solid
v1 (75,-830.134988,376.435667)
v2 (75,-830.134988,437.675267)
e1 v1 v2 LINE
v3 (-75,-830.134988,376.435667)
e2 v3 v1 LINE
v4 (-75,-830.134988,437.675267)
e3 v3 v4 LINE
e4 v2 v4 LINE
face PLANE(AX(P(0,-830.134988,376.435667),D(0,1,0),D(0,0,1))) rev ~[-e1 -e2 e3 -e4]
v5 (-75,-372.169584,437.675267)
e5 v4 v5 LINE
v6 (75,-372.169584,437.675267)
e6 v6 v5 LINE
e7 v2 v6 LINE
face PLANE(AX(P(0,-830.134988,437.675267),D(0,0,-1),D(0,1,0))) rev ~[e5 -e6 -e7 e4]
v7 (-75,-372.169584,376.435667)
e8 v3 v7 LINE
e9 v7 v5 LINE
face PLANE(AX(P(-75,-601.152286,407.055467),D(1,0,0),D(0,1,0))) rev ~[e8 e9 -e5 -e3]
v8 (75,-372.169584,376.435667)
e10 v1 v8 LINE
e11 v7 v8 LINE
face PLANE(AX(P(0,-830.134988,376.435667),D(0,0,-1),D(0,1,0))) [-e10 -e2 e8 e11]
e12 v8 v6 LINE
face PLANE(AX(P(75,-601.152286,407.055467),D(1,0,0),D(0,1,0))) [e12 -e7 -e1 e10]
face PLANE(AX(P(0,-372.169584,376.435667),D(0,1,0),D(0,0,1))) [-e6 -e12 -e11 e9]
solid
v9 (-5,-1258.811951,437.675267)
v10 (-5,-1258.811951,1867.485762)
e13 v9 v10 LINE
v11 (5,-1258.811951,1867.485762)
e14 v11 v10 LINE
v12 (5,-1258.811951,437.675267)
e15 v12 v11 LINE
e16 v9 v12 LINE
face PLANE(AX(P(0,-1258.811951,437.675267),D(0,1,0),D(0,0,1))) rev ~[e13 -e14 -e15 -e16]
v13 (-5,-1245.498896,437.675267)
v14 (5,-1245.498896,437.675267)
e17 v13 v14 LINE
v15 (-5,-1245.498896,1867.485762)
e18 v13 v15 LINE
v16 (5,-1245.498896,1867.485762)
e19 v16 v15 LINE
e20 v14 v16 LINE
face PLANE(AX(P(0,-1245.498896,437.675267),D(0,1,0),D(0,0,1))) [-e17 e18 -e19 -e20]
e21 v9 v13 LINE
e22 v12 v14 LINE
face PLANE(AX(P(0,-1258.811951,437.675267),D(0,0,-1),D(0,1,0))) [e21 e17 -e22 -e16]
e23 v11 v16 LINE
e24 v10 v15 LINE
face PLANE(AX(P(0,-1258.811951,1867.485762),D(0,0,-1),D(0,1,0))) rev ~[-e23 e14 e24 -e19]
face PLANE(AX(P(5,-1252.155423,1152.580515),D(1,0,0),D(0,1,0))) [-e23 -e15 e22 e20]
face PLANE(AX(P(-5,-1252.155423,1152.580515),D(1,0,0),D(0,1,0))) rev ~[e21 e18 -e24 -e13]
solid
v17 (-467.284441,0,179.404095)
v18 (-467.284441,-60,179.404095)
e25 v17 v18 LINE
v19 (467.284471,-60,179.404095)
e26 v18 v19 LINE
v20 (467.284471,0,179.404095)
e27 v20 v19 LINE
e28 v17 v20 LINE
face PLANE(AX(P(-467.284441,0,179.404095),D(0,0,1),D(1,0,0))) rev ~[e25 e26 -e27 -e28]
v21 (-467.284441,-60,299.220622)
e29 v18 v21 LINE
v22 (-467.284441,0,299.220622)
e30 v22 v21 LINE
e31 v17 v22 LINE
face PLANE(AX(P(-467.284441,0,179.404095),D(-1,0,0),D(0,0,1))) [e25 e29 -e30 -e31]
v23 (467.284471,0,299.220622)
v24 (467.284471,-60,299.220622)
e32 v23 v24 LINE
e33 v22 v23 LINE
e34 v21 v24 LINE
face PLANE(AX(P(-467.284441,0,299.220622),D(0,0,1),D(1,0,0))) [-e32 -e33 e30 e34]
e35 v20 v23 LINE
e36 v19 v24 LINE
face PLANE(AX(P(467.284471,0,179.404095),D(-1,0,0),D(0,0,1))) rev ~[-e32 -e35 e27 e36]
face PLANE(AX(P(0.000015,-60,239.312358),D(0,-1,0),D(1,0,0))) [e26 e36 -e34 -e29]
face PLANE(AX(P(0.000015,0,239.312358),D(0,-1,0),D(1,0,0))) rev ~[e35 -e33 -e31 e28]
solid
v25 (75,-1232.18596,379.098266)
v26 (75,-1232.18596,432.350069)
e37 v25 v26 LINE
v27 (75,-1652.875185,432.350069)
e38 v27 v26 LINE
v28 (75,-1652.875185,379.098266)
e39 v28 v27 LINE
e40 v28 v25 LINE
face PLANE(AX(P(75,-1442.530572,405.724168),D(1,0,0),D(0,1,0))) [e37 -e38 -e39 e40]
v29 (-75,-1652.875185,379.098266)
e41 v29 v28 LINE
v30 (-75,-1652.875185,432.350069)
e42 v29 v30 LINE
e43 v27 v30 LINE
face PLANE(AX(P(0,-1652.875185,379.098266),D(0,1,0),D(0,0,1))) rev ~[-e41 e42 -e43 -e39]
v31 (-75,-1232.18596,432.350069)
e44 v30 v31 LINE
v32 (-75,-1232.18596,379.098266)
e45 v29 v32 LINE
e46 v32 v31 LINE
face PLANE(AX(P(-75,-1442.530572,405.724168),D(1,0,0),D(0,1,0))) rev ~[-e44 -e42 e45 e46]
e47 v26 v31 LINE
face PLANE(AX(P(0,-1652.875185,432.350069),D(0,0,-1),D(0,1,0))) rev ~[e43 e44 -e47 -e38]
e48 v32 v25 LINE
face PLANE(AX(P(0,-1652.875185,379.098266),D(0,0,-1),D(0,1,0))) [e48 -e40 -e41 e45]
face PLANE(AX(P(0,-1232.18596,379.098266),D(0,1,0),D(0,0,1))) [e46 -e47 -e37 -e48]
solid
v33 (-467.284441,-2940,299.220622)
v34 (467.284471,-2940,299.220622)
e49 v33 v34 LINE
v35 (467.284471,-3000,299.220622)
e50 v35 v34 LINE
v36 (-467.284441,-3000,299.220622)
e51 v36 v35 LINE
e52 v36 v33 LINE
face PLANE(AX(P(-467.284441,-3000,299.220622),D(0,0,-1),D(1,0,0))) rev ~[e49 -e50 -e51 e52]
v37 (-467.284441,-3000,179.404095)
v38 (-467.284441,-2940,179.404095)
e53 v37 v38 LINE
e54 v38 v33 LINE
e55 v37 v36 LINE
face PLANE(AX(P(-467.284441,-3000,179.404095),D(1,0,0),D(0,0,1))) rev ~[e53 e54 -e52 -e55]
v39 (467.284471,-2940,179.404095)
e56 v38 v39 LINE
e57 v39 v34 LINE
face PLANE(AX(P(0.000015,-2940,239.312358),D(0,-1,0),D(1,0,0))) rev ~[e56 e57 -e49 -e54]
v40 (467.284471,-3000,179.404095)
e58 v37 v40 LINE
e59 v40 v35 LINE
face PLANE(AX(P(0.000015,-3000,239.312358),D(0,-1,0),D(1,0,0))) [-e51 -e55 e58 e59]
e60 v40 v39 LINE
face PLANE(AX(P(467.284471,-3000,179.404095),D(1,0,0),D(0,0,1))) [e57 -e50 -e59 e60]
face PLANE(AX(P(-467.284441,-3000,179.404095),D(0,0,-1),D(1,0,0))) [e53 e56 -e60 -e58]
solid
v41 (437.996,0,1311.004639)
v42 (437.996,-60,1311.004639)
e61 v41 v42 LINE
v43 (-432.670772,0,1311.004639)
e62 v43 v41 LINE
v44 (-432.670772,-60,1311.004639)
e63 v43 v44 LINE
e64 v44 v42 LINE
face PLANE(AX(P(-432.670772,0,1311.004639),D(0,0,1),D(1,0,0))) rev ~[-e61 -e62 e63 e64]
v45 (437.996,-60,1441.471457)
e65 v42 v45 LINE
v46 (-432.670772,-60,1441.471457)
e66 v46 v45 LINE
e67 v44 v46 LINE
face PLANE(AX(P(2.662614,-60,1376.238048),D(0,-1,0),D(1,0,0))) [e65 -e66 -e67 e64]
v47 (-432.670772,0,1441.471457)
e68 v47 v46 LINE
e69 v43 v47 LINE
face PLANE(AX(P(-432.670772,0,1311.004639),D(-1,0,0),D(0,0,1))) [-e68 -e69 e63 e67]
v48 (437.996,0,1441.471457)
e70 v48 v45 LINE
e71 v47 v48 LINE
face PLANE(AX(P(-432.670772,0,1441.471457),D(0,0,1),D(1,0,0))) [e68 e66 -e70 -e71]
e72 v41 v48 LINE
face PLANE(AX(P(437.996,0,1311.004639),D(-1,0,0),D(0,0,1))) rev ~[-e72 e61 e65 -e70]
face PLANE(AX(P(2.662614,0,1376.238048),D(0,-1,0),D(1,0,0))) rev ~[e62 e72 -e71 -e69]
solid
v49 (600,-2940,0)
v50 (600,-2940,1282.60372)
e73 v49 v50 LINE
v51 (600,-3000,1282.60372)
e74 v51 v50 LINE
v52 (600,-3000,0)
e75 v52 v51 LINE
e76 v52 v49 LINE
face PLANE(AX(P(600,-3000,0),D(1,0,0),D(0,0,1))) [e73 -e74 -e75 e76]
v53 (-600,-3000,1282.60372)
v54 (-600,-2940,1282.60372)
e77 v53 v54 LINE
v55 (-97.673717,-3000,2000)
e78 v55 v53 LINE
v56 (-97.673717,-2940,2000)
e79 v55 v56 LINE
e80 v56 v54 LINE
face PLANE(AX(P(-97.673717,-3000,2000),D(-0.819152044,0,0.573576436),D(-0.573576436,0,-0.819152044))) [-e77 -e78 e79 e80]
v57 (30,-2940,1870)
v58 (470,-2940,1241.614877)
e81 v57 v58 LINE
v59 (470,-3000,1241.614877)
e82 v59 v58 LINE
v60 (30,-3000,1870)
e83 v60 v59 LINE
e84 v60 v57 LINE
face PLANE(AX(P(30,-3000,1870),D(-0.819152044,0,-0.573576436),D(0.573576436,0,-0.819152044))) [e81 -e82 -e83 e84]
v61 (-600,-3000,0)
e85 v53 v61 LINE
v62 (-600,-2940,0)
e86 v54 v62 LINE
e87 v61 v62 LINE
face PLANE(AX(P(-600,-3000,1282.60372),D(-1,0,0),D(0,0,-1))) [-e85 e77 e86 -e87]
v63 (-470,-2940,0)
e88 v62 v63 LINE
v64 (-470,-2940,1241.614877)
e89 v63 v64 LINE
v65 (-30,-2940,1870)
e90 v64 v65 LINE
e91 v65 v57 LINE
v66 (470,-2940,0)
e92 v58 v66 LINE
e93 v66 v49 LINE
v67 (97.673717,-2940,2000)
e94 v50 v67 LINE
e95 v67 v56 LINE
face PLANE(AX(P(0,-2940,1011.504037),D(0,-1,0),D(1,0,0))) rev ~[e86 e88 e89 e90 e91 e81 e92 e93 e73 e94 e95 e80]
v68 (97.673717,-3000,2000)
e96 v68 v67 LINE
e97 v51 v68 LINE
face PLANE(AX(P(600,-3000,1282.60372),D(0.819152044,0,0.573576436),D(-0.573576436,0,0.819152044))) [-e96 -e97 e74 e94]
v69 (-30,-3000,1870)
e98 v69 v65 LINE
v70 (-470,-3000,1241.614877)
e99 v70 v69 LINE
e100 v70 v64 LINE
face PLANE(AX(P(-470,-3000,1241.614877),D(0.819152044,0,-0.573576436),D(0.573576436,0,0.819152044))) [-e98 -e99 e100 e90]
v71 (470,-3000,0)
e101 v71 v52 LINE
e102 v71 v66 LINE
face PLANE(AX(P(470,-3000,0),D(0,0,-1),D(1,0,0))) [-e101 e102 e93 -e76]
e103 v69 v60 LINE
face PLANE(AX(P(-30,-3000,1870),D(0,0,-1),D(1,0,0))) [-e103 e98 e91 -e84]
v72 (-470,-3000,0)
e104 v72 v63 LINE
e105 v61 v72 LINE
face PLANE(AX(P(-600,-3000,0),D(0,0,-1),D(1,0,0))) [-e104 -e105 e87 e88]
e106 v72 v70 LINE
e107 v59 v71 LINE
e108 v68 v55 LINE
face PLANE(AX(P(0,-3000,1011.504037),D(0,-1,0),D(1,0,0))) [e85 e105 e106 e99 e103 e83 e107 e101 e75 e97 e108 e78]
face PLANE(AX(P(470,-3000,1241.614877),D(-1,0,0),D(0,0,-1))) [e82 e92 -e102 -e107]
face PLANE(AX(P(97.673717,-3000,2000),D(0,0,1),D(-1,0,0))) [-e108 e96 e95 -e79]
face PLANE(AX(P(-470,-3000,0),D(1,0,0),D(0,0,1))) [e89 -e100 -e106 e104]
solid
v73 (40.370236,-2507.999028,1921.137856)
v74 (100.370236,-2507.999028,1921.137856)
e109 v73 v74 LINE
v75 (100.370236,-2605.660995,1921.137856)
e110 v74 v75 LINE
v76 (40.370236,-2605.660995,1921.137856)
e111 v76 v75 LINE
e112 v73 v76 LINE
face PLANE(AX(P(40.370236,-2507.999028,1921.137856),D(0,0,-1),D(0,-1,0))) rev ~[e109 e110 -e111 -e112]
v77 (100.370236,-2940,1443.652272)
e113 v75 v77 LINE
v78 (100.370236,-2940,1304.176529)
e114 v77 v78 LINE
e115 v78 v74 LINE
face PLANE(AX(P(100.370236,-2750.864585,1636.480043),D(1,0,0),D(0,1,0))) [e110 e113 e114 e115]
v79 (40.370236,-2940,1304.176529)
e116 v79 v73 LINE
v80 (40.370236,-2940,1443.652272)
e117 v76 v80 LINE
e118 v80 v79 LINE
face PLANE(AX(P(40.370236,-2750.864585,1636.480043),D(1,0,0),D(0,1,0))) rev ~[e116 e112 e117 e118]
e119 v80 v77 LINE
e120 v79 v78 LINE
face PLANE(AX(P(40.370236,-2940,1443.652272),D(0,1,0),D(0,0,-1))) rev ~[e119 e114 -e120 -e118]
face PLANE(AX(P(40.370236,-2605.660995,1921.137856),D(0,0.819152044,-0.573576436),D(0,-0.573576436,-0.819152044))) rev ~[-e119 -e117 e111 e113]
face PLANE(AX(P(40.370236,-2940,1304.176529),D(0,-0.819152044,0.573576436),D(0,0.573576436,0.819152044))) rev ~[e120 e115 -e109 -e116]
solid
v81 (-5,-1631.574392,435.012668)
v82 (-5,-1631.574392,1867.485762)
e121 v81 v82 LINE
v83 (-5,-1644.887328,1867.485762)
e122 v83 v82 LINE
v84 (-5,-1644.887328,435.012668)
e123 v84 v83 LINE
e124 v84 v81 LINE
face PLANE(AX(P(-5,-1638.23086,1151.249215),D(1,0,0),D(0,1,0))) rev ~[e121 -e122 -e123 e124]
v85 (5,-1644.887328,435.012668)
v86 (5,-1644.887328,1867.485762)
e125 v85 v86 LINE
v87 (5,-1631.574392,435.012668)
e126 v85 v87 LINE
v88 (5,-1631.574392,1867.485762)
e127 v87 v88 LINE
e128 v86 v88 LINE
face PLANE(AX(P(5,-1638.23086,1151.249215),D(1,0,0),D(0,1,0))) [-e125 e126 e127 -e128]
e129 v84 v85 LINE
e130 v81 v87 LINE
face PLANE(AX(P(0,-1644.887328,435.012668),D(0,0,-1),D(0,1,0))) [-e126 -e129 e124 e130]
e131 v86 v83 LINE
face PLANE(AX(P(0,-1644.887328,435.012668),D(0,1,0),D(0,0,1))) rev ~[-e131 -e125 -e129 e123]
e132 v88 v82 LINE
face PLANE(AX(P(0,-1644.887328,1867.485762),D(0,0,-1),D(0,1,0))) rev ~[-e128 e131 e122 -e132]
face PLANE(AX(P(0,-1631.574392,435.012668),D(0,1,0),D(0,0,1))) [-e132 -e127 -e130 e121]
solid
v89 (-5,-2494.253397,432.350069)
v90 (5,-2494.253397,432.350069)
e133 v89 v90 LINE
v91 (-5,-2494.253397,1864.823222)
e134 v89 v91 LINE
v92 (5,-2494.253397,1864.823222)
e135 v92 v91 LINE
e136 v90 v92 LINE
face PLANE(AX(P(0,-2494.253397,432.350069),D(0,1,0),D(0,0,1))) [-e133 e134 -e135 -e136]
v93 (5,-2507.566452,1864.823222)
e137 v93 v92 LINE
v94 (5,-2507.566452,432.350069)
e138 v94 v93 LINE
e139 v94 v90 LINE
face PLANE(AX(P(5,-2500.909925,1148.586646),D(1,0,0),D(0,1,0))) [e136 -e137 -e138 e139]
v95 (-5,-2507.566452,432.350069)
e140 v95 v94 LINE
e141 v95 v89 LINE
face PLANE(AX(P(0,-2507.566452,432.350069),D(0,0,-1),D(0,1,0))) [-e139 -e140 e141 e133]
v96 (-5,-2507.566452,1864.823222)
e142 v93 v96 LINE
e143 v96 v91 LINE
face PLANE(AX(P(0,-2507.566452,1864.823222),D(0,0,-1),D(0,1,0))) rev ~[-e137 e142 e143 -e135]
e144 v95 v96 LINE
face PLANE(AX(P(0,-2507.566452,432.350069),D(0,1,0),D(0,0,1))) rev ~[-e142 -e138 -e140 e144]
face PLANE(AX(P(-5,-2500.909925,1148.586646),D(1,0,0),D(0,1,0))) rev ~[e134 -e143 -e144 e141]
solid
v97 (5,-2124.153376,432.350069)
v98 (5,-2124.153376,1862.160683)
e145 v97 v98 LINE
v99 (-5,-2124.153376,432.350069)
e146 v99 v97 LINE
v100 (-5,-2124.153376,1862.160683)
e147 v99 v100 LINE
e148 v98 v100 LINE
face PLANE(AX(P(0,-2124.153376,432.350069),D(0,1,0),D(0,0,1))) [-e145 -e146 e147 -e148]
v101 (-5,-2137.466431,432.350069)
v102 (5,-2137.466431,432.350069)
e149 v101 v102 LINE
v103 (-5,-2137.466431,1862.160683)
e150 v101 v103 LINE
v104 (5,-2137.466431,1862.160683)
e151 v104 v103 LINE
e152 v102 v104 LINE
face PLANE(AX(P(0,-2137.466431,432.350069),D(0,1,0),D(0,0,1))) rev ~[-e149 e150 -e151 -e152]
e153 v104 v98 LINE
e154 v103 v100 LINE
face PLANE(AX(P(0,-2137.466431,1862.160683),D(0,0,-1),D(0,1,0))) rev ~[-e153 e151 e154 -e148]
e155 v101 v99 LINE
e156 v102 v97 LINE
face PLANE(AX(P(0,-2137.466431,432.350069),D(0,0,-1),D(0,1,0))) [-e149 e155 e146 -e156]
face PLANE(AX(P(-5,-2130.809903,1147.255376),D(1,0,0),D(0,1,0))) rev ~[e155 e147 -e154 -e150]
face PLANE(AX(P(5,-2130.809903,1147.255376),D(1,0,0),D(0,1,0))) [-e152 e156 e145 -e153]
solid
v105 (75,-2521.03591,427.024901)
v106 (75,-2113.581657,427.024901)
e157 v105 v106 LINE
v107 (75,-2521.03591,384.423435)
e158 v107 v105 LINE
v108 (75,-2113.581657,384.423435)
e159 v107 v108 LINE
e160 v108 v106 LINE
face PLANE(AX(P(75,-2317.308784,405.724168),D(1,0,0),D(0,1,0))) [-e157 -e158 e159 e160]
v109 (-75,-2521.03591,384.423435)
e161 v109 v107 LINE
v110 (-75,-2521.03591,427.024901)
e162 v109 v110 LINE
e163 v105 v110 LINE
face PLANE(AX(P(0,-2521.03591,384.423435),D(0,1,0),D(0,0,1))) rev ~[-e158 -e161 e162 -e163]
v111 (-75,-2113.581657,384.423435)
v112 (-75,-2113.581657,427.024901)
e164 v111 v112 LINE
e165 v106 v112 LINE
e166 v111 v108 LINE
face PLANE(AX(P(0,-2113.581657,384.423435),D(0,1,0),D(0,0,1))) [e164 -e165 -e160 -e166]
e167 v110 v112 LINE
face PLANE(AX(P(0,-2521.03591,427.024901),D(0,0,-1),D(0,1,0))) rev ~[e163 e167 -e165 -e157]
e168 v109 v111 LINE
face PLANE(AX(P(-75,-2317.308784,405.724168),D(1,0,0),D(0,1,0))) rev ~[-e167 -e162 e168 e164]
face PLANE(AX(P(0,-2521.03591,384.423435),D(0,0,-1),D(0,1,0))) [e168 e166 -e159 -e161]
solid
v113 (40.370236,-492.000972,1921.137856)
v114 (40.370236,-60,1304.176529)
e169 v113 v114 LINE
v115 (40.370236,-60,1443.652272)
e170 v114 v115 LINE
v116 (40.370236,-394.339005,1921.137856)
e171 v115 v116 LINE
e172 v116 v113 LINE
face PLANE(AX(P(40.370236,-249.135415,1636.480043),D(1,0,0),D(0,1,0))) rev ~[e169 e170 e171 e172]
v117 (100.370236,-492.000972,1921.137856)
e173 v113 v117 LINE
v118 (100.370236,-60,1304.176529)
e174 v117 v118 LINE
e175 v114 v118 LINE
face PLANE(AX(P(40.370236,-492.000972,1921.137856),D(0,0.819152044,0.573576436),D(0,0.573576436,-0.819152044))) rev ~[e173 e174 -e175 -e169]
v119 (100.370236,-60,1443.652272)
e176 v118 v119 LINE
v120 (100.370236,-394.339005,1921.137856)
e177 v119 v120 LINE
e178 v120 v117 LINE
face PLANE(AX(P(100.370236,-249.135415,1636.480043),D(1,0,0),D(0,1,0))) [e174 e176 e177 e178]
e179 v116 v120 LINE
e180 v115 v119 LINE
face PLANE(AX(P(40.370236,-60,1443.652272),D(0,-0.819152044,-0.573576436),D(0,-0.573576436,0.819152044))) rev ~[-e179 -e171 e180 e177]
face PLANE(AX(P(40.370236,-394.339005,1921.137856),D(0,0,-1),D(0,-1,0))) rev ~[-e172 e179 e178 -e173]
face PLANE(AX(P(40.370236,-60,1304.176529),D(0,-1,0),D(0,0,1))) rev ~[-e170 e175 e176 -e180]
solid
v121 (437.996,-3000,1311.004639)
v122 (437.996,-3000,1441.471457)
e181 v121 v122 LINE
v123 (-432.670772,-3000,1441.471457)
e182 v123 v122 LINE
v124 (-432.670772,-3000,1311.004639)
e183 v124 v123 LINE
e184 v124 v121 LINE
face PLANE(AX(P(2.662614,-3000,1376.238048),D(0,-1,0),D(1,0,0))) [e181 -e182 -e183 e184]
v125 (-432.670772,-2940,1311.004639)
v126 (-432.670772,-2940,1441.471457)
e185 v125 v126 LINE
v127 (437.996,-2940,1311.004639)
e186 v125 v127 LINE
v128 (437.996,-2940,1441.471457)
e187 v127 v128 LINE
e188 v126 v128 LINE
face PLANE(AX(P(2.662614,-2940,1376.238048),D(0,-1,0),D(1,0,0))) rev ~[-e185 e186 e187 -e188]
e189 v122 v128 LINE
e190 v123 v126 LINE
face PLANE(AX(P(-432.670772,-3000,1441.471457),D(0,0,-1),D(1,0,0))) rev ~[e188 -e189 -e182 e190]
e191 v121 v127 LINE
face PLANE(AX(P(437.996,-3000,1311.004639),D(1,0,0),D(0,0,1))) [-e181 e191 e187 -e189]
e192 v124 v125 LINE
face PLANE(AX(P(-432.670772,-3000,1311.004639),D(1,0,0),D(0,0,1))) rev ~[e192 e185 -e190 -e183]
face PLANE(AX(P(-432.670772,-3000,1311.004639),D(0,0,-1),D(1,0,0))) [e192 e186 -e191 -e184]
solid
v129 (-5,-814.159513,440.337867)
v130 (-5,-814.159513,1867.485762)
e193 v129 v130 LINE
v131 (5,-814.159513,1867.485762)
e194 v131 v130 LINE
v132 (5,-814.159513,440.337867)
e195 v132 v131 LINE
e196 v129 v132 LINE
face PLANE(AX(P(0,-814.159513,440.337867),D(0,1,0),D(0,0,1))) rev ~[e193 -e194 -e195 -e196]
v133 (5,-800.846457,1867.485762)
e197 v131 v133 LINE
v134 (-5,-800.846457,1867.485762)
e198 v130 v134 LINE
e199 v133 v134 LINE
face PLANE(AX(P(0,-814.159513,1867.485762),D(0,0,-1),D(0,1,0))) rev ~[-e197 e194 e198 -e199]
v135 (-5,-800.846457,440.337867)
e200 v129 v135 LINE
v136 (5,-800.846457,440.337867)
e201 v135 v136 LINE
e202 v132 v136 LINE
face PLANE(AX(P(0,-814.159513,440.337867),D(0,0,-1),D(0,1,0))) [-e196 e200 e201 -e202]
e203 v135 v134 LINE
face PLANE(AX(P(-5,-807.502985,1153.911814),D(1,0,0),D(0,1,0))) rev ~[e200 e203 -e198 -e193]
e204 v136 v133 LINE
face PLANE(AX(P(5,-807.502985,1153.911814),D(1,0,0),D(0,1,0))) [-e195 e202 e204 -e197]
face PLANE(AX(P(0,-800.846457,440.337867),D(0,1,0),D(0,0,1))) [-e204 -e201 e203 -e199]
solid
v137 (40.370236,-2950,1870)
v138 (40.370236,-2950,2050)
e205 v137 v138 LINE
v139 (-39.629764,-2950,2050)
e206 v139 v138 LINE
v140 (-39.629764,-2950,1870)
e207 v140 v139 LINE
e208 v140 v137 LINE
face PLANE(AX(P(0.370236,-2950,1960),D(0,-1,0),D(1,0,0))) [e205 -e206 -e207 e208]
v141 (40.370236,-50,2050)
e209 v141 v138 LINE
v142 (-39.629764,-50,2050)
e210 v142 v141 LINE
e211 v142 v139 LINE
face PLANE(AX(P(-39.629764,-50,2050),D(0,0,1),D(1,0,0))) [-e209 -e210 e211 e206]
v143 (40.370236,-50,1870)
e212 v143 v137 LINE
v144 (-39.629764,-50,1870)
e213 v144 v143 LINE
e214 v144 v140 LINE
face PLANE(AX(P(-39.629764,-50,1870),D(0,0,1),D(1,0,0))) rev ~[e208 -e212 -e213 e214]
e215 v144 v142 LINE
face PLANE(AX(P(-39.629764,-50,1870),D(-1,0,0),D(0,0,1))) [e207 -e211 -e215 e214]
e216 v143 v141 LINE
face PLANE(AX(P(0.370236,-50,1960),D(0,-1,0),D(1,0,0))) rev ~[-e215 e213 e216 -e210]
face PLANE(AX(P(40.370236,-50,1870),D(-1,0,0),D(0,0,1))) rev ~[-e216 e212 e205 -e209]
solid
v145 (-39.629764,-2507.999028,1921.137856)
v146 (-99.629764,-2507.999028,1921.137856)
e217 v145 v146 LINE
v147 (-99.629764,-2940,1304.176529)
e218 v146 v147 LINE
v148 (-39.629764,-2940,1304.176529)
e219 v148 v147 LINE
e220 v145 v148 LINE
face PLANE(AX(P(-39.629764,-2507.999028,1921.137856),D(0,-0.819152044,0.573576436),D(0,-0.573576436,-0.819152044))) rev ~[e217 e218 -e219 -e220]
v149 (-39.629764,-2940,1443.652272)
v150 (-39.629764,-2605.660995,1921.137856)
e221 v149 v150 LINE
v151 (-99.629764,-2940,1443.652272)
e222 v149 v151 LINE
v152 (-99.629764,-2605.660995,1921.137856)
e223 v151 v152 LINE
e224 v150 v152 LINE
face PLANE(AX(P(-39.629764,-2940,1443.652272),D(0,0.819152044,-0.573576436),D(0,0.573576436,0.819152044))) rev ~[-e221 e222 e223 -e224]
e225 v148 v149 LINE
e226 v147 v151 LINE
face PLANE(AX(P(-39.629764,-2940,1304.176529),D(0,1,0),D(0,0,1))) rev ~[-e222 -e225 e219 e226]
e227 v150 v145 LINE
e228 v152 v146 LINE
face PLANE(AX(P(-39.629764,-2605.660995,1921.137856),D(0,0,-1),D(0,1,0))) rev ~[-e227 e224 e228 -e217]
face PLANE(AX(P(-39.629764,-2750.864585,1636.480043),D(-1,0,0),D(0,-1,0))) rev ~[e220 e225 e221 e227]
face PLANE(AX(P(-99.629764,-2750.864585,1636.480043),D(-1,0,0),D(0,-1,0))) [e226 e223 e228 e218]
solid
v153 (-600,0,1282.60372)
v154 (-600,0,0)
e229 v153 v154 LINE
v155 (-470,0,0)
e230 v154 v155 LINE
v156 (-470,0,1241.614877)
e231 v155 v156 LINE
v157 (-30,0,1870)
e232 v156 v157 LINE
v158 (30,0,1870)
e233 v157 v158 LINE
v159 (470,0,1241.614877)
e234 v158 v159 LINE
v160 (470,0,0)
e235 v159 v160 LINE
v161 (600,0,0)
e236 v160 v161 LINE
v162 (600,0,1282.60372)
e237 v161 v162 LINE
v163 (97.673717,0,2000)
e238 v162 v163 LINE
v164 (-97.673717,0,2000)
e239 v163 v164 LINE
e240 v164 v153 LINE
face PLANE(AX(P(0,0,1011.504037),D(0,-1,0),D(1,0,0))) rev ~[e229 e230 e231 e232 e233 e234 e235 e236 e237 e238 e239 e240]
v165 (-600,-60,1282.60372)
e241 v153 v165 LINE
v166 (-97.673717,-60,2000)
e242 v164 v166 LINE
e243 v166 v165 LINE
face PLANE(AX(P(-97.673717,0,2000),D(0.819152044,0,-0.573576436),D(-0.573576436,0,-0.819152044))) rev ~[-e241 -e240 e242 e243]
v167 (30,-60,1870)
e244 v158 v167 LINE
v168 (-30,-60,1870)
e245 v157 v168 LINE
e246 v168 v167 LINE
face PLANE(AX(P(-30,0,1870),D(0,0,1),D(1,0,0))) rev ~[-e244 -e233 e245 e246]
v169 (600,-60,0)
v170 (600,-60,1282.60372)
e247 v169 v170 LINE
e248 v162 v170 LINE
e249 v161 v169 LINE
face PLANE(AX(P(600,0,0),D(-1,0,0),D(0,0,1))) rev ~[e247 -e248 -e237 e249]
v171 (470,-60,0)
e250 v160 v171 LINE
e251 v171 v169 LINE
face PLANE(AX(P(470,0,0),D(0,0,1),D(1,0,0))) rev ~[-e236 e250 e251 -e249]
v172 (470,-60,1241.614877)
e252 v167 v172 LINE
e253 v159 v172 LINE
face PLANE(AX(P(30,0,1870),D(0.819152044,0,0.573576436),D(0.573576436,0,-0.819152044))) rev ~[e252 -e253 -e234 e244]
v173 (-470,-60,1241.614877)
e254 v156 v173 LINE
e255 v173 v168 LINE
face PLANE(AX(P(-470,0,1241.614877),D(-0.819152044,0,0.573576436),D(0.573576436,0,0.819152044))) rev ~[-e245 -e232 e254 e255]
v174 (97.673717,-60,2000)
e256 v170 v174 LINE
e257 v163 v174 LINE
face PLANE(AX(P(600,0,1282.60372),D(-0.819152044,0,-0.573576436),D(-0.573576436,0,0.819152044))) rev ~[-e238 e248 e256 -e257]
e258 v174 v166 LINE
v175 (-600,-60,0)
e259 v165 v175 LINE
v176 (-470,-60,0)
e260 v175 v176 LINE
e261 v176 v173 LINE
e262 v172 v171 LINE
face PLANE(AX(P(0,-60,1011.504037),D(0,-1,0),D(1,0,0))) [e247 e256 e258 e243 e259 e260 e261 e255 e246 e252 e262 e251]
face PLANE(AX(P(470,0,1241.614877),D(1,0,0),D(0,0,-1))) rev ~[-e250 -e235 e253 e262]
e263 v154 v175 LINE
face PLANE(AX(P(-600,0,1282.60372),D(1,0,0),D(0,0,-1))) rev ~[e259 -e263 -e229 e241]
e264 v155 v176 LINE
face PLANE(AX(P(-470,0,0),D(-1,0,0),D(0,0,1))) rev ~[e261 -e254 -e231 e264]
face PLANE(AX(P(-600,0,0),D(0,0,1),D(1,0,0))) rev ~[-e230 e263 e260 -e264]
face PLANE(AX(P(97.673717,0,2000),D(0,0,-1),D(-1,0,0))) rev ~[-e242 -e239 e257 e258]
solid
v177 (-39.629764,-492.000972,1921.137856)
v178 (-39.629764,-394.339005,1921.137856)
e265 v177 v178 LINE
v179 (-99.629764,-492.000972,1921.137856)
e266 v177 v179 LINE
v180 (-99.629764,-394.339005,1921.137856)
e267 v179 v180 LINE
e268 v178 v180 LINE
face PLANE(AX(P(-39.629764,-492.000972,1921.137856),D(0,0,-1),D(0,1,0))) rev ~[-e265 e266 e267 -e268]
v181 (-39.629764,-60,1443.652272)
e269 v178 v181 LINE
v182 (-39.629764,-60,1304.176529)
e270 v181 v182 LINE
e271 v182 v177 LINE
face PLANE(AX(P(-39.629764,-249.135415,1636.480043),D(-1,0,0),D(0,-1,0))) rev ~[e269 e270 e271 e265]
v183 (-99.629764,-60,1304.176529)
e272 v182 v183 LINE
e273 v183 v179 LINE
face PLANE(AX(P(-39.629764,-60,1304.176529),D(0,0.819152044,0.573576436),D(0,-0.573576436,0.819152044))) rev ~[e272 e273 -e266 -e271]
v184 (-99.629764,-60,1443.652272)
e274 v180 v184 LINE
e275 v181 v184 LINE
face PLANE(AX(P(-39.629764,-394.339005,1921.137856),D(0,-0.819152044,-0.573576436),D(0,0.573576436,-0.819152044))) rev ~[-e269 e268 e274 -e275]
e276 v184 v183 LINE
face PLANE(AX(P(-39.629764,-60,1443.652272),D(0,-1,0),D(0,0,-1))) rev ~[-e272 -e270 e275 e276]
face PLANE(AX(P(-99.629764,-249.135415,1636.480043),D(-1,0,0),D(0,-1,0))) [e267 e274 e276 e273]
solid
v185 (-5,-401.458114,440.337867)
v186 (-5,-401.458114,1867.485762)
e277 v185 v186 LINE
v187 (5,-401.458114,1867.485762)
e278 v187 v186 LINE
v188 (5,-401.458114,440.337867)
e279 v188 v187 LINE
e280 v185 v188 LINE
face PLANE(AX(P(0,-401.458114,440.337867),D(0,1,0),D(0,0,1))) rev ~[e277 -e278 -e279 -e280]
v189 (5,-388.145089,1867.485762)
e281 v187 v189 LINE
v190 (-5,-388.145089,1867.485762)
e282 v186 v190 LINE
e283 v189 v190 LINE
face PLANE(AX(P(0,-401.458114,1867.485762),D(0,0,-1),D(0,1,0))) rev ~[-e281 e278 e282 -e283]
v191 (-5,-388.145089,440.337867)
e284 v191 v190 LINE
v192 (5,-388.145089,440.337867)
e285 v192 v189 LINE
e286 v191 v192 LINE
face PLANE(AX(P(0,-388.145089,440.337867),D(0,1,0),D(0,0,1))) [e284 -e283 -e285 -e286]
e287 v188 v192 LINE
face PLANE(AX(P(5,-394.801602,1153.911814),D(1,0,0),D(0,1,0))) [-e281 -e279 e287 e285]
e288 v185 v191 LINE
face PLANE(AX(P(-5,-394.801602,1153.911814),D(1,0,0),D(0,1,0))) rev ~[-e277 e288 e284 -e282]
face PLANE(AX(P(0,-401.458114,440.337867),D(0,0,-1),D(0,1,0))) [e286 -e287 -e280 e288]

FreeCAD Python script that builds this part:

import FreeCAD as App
import Part
import Sketcher
from FreeCAD import Vector
Q = App.Units.Quantity


def add_polygon(sketch, points):
    """Adds a closed chain of lines whose ends are joined by coincident constraints."""
    first, n = sketch.GeometryCount, len(points)
    for a, b in zip(points, points[1:] + points[:1]):
        sketch.addGeometry(Part.LineSegment(App.Vector(*a, 0), App.Vector(*b, 0)), False)
    for i in range(n):
        sketch.addConstraint(Sketcher.Constraint("Coincident", first + i, 2, first + (i + 1) % n, 1))

doc = App.newDocument("Part")
body = doc.addObject("PartDesign::Body", "Body")

# Sketch on XZ plane
sketch1 = body.newObject("Sketcher::SketchObject", "Sketch")
sketch1.AttachmentSupport = (doc.getObject("XZ_Plane"), [""])
sketch1.MapMode = "FlatFace"
add_polygon(sketch1, [(-98, 2000), (-600, 1283), (-600, 0), (-470, 0), (-470, 1242), (-30, 1870), (30, 1870), (470, 1242), (470, 0), (600, 0), (600, 1283), (98, 2000)])  # lines 0-11
sketch1.addConstraint(Sketcher.Constraint("Vertical", 1))
sketch1.addConstraint(Sketcher.Constraint("Horizontal", 2))
sketch1.addConstraint(Sketcher.Constraint("Vertical", 3))
sketch1.addConstraint(Sketcher.Constraint("Horizontal", 5))
sketch1.addConstraint(Sketcher.Constraint("Vertical", 7))
sketch1.addConstraint(Sketcher.Constraint("Horizontal", 8))
sketch1.addConstraint(Sketcher.Constraint("Vertical", 9))
sketch1.addConstraint(Sketcher.Constraint("Horizontal", 11))
sketch1.addConstraint(Sketcher.Constraint("Symmetric", 2, 2, 7, 2, -1, 1))
sketch1.addConstraint(Sketcher.Constraint("Symmetric", 1, 2, 8, 2, -2))
sketch1.addConstraint(Sketcher.Constraint("Parallel", 0, 4))
sketch1.addConstraint(Sketcher.Constraint("Parallel", 6, 10))
sketch1.addConstraint(Sketcher.Constraint("Horizontal", 3, 2, 6, 2))
sketch1.addConstraint(Sketcher.Constraint("Horizontal", 0, 2, 9, 2))
sketch1.addConstraint(Sketcher.Constraint("Equal", 4, 6))
sketch1.addConstraint(Sketcher.Constraint("DistanceX", 2, 1, 2, 2, 130.0))
sketch1.addConstraint(Sketcher.Constraint("DistanceX", 5, 1, 5, 2, 60.0))
sketch1.addConstraint(Sketcher.Constraint("Angle", 0, Q("-125 deg")))
sketch1.addConstraint(Sketcher.Constraint("DistanceX", 0, 2, -1, 1, 600.0))
sketch1.addConstraint(Sketcher.Constraint("DistanceY", -1, 1, 4, 2, 1870.0))
sketch1.addConstraint(Sketcher.Constraint("DistanceY", -1, 1, 10, 2, 2000.0))
sketch1.addConstraint(Sketcher.Constraint("DistanceY", 1, 2, 1, 1, 1282.60372))
pad1 = body.newObject("PartDesign::Pad", "Pad")
pad1.Profile = sketch1
pad1.Length = 60
body2 = doc.addObject("PartDesign::Body", "Body001")

# Sketch on XZ plane
sketch2 = body2.newObject("Sketcher::SketchObject", "Sketch001")
sketch2.AttachmentSupport = (doc.getObject("XZ_Plane001"), [""])
sketch2.MapMode = "FlatFace"
sketch2.AttachmentOffset = App.Placement(Vector(0, 0, 3000), App.Rotation())
add_polygon(sketch2, [(-470, 1242), (-30, 1870), (30, 1870), (470, 1242), (470, 0), (600, 0), (600, 1283), (98, 2000), (-98, 2000), (-600, 1283), (-600, 0), (-470, 0)])  # lines 0-11
sketch2.addConstraint(Sketcher.Constraint("Horizontal", 1))
sketch2.addConstraint(Sketcher.Constraint("Vertical", 3))
sketch2.addConstraint(Sketcher.Constraint("Horizontal", 4))
sketch2.addConstraint(Sketcher.Constraint("Vertical", 5))
sketch2.addConstraint(Sketcher.Constraint("Horizontal", 7))
sketch2.addConstraint(Sketcher.Constraint("Vertical", 9))
sketch2.addConstraint(Sketcher.Constraint("Horizontal", 10))
sketch2.addConstraint(Sketcher.Constraint("Vertical", 11))
sketch2.addConstraint(Sketcher.Constraint("Symmetric", 4, 2, 9, 2, -1, 1))
sketch2.addConstraint(Sketcher.Constraint("Symmetric", 3, 2, 10, 2, -2))
sketch2.addConstraint(Sketcher.Constraint("Parallel", 2, 6))
sketch2.addConstraint(Sketcher.Constraint("Parallel", 0, 8))
sketch2.addConstraint(Sketcher.Constraint("Horizontal", 5, 2, 8, 2))
sketch2.addConstraint(Sketcher.Constraint("Horizontal", 2, 2, 11, 2))
sketch2.addConstraint(Sketcher.Constraint("Equal", 0, 2))
sketch2.addConstraint(Sketcher.Constraint("DistanceX", 1, 1, 1, 2, 60.0))
sketch2.addConstraint(Sketcher.Constraint("DistanceX", 4, 1, 4, 2, 130.0))
sketch2.addConstraint(Sketcher.Constraint("Angle", 0, Q("55 deg")))
sketch2.addConstraint(Sketcher.Constraint("DistanceY", -1, 1, 0, 2, 1870.0))
sketch2.addConstraint(Sketcher.Constraint("DistanceX", -1, 1, 2, 2, 470.0))
sketch2.addConstraint(Sketcher.Constraint("DistanceY", -1, 1, 6, 2, 2000.0))
sketch2.addConstraint(Sketcher.Constraint("DistanceY", 5, 1, 5, 2, 1282.60372))
pad2 = body2.newObject("PartDesign::Pad", "Pad001")
pad2.Profile = sketch2
pad2.Length = 60
pad2.Reversed = True
body3 = doc.addObject("PartDesign::Body", "Body002")

# Sketch on XZ plane
sketch3 = body3.newObject("Sketcher::SketchObject", "Sketch002")
sketch3.AttachmentSupport = (doc.getObject("XZ_Plane002"), [""])
sketch3.MapMode = "FlatFace"
sketch3.AttachmentOffset = App.Placement(Vector(0, 0, 50), App.Rotation())
add_polygon(sketch3, [(-40, 2050), (-40, 1870), (40, 1870), (40, 2050)])  # lines 0-3
sketch3.addConstraint(Sketcher.Constraint("Vertical", 0))
sketch3.addConstraint(Sketcher.Constraint("Horizontal", 1))
sketch3.addConstraint(Sketcher.Constraint("Vertical", 2))
sketch3.addConstraint(Sketcher.Constraint("Horizontal", 3))
sketch3.addConstraint(Sketcher.Constraint("DistanceX", 1, 1, 1, 2, 80.0))
sketch3.addConstraint(Sketcher.Constraint("DistanceY", 0, 2, 0, 1, 180.0))
sketch3.addConstraint(Sketcher.Constraint("DistanceY", -1, 1, 0, 2, 1870.0))
sketch3.addConstraint(Sketcher.Constraint("DistanceX", 0, 2, -1, 1, 39.629764))
pad3 = body3.newObject("PartDesign::Pad", "Pad002")
pad3.Profile = sketch3
pad3.Length = 2900
body4 = doc.addObject("PartDesign::Body", "Body003")

# Sketch on XZ plane
sketch4 = body4.newObject("Sketcher::SketchObject", "Sketch003")
sketch4.AttachmentSupport = (doc.getObject("XZ_Plane003"), [""])
sketch4.MapMode = "FlatFace"
sketch4.AttachmentOffset = App.Placement(Vector(0, 0, 3000), App.Rotation())
add_polygon(sketch4, [(-433, 1441), (-433, 1311), (438, 1311), (438, 1441)])  # lines 0-3
sketch4.addConstraint(Sketcher.Constraint("Vertical", 0))
sketch4.addConstraint(Sketcher.Constraint("Horizontal", 1))
sketch4.addConstraint(Sketcher.Constraint("Vertical", 2))
sketch4.addConstraint(Sketcher.Constraint("Horizontal", 3))
sketch4.addConstraint(Sketcher.Constraint("DistanceX", -1, 1, 1, 2, 437.996))
sketch4.addConstraint(Sketcher.Constraint("DistanceY", 0, 2, 0, 1, 130.466819))
sketch4.addConstraint(Sketcher.Constraint("DistanceX", 1, 1, 1, 2, 870.666772))
sketch4.addConstraint(Sketcher.Constraint("DistanceY", -1, 1, 0, 2, 1311.004639))
pad4 = body4.newObject("PartDesign::Pad", "Pad003")
pad4.Profile = sketch4
pad4.Length = 60
pad4.Reversed = True
body5 = doc.addObject("PartDesign::Body", "Body004")

# Sketch on XZ plane
sketch5 = body5.newObject("Sketcher::SketchObject", "Sketch004")
sketch5.AttachmentSupport = (doc.getObject("XZ_Plane004"), [""])
sketch5.MapMode = "FlatFace"
sketch5.AttachmentOffset = App.Placement(Vector(0, 0, 3000), App.Rotation())
add_polygon(sketch5, [(-467, 299), (-467, 179), (467, 179), (467, 299)])  # lines 0-3
sketch5.addConstraint(Sketcher.Constraint("Vertical", 0))
sketch5.addConstraint(Sketcher.Constraint("Horizontal", 1))
sketch5.addConstraint(Sketcher.Constraint("Vertical", 2))
sketch5.addConstraint(Sketcher.Constraint("Horizontal", 3))
sketch5.addConstraint(Sketcher.Constraint("DistanceX", 1, 1, 1, 2, 934.568912))
sketch5.addConstraint(Sketcher.Constraint("DistanceY", 0, 2, 0, 1, 119.816527))
sketch5.addConstraint(Sketcher.Constraint("DistanceX", 0, 2, -1, 1, 467.284441))
sketch5.addConstraint(Sketcher.Constraint("DistanceY", -1, 1, 2, 2, 299.220622))
pad5 = body5.newObject("PartDesign::Pad", "Pad004")
pad5.Profile = sketch5
pad5.Length = 60
pad5.Reversed = True
body6 = doc.addObject("PartDesign::Body", "Body005")

# Sketch on XZ plane
sketch6 = body6.newObject("Sketcher::SketchObject", "Sketch005")
sketch6.AttachmentSupport = (doc.getObject("XZ_Plane005"), [""])
sketch6.MapMode = "FlatFace"
add_polygon(sketch6, [(-433, 1441), (-433, 1311), (438, 1311), (438, 1441)])  # lines 0-3
sketch6.addConstraint(Sketcher.Constraint("Vertical", 0))
sketch6.addConstraint(Sketcher.Constraint("Horizontal", 1))
sketch6.addConstraint(Sketcher.Constraint("Vertical", 2))
sketch6.addConstraint(Sketcher.Constraint("Horizontal", 3))
sketch6.addConstraint(Sketcher.Constraint("DistanceX", -1, 1, 1, 2, 437.996))
sketch6.addConstraint(Sketcher.Constraint("DistanceY", 0, 2, 0, 1, 130.466819))
sketch6.addConstraint(Sketcher.Constraint("DistanceX", 1, 1, 1, 2, 870.666772))
sketch6.addConstraint(Sketcher.Constraint("DistanceY", -1, 1, 0, 2, 1311.004639))
pad6 = body6.newObject("PartDesign::Pad", "Pad005")
pad6.Profile = sketch6
pad6.Length = 60
body7 = doc.addObject("PartDesign::Body", "Body006")

# Sketch on XZ plane
sketch7 = body7.newObject("Sketcher::SketchObject", "Sketch006")
sketch7.AttachmentSupport = (doc.getObject("XZ_Plane006"), [""])
sketch7.MapMode = "FlatFace"
add_polygon(sketch7, [(-467, 299), (-467, 179), (467, 179), (467, 299)])  # lines 0-3
sketch7.addConstraint(Sketcher.Constraint("Vertical", 0))
sketch7.addConstraint(Sketcher.Constraint("Horizontal", 1))
sketch7.addConstraint(Sketcher.Constraint("Vertical", 2))
sketch7.addConstraint(Sketcher.Constraint("Horizontal", 3))
sketch7.addConstraint(Sketcher.Constraint("DistanceX", 1, 1, 1, 2, 934.568912))
sketch7.addConstraint(Sketcher.Constraint("DistanceY", 0, 2, 0, 1, 119.816527))
sketch7.addConstraint(Sketcher.Constraint("DistanceX", 0, 2, -1, 1, 467.284441))
sketch7.addConstraint(Sketcher.Constraint("DistanceY", -1, 1, 2, 2, 299.220622))
pad7 = body7.newObject("PartDesign::Pad", "Pad006")
pad7.Profile = sketch7
pad7.Length = 60
body8 = doc.addObject("PartDesign::Body", "Body007")

# Sketch on YZ plane
sketch8 = body8.newObject("Sketcher::SketchObject", "Sketch007")
sketch8.AttachmentSupport = (doc.getObject("YZ_Plane007"), [""])
sketch8.MapMode = "FlatFace"
sketch8.AttachmentOffset = App.Placement(Vector(0, 0, 40.370236), App.Rotation())
add_polygon(sketch8, [(-2606, 1921), (-2940, 1444), (-2940, 1304), (-2508, 1921)])  # lines 0-3
sketch8.addConstraint(Sketcher.Constraint("Vertical", 1))
sketch8.addConstraint(Sketcher.Constraint("Horizontal", 3))
sketch8.addConstraint(Sketcher.Constraint("Parallel", 0, 2))
sketch8.addConstraint(Sketcher.Constraint("Angle", 0, Q("-125 deg")))
sketch8.addConstraint(Sketcher.Constraint("DistanceX", 0, 2, -1, 1, 2940.0))
sketch8.addConstraint(Sketcher.Constraint("Distance", 2, 753.170711))
sketch8.addConstraint(Sketcher.Constraint("DistanceX", 3, 2, 3, 1, 97.661967))
sketch8.addConstraint(Sketcher.Constraint("DistanceY", -1, 1, 1, 2, 1304.176529))
pad8 = body8.newObject("PartDesign::Pad", "Pad007")
pad8.Profile = sketch8
pad8.Length = 60
body9 = doc.addObject("PartDesign::Body", "Body008")

# Sketch on YZ plane
sketch9 = body9.newObject("Sketcher::SketchObject", "Sketch008")
sketch9.AttachmentSupport = (doc.getObject("YZ_Plane008"), [""])
sketch9.MapMode = "FlatFace"
sketch9.AttachmentOffset = App.Placement(Vector(0, 0, 40.370236), App.Rotation())
add_polygon(sketch9, [(-394, 1921), (-492, 1921), (-60, 1304), (-60, 1444)])  # lines 0-3
sketch9.addConstraint(Sketcher.Constraint("Horizontal", 0))
sketch9.addConstraint(Sketcher.Constraint("Vertical", 2))
sketch9.addConstraint(Sketcher.Constraint("Parallel", 1, 3))
sketch9.addConstraint(Sketcher.Constraint("Angle", 1, Q("-55 deg")))
sketch9.addConstraint(Sketcher.Constraint("DistanceX", 1, 2, -1, 1, 60.0))
sketch9.addConstraint(Sketcher.Constraint("Distance", 1, 753.170711))
sketch9.addConstraint(Sketcher.Constraint("DistanceX", 0, 2, 0, 1, 97.661967))
sketch9.addConstraint(Sketcher.Constraint("DistanceY", -1, 1, 1, 2, 1304.176529))
pad9 = body9.newObject("PartDesign::Pad", "Pad008")
pad9.Profile = sketch9
pad9.Length = 60
body10 = doc.addObject("PartDesign::Body", "Body009")

# Sketch on YZ plane
sketch10 = body10.newObject("Sketcher::SketchObject", "Sketch009")
sketch10.AttachmentSupport = (doc.getObject("YZ_Plane009"), [""])
sketch10.MapMode = "FlatFace"
sketch10.AttachmentOffset = App.Placement(Vector(0, 0, -39.629764), App.Rotation())
add_polygon(sketch10, [(-2508, 1921), (-2940, 1304), (-2940, 1444), (-2606, 1921)])  # lines 0-3
sketch10.addConstraint(Sketcher.Constraint("Vertical", 1))
sketch10.addConstraint(Sketcher.Constraint("Horizontal", 3))
sketch10.addConstraint(Sketcher.Constraint("Parallel", 0, 2))
sketch10.addConstraint(Sketcher.Constraint("Angle", 0, Q("-125 deg")))
sketch10.addConstraint(Sketcher.Constraint("DistanceX", 0, 2, -1, 1, 2940.0))
sketch10.addConstraint(Sketcher.Constraint("Distance", 0, 753.170711))
sketch10.addConstraint(Sketcher.Constraint("DistanceX", 3, 1, 3, 2, 97.661967))
sketch10.addConstraint(Sketcher.Constraint("DistanceY", -1, 1, 0, 2, 1304.176529))
pad10 = body10.newObject("PartDesign::Pad", "Pad009")
pad10.Profile = sketch10
pad10.Length = 60
pad10.Reversed = True
body11 = doc.addObject("PartDesign::Body", "Body010")

# Sketch on YZ plane
sketch11 = body11.newObject("Sketcher::SketchObject", "Sketch010")
sketch11.AttachmentSupport = (doc.getObject("YZ_Plane010"), [""])
sketch11.MapMode = "FlatFace"
sketch11.AttachmentOffset = App.Placement(Vector(0, 0, -39.629764), App.Rotation())
add_polygon(sketch11, [(-60, 1444), (-60, 1304), (-492, 1921), (-394, 1921)])  # lines 0-3
sketch11.addConstraint(Sketcher.Constraint("Vertical", 0))
sketch11.addConstraint(Sketcher.Constraint("Horizontal", 2))
sketch11.addConstraint(Sketcher.Constraint("Parallel", 1, 3))
sketch11.addConstraint(Sketcher.Constraint("Angle", 1, Q("125 deg")))
sketch11.addConstraint(Sketcher.Constraint("DistanceX", 0, 2, -1, 1, 60.0))
sketch11.addConstraint(Sketcher.Constraint("Distance", 1, 753.170711))
sketch11.addConstraint(Sketcher.Constraint("DistanceX", 2, 1, 2, 2, 97.661967))
sketch11.addConstraint(Sketcher.Constraint("DistanceY", -1, 1, 0, 2, 1304.176529))
pad11 = body11.newObject("PartDesign::Pad", "Pad010")
pad11.Profile = sketch11
pad11.Length = 60
pad11.Reversed = True
body12 = doc.addObject("PartDesign::Body", "Body011")

# Sketch on YZ plane
sketch12 = body12.newObject("Sketcher::SketchObject", "Sketch011")
sketch12.AttachmentSupport = (doc.getObject("YZ_Plane011"), [""])
sketch12.MapMode = "FlatFace"
add_polygon(sketch12, [(-2521, 427), (-2521, 384), (-2114, 384), (-2114, 427)])  # lines 0-3
sketch12.addConstraint(Sketcher.Constraint("Vertical", 0))
sketch12.addConstraint(Sketcher.Constraint("Horizontal", 1))
sketch12.addConstraint(Sketcher.Constraint("Vertical", 2))
sketch12.addConstraint(Sketcher.Constraint("Horizontal", 3))
sketch12.addConstraint(Sketcher.Constraint("DistanceY", -1, 1, 2, 2, 427.024901))
sketch12.addConstraint(Sketcher.Constraint("DistanceX", 1, 1, 1, 2, 407.454252))
sketch12.addConstraint(Sketcher.Constraint("DistanceY", 0, 2, 0, 1, 42.601466))
sketch12.addConstraint(Sketcher.Constraint("DistanceX", 0, 2, -1, 1, 2521.03591))
pad12 = body12.newObject("PartDesign::Pad", "Pad011")
pad12.Profile = sketch12
pad12.Length = 150
pad12.Midplane = True
body13 = doc.addObject("PartDesign::Body", "Body012")

# Sketch on YZ plane
sketch13 = body13.newObject("Sketcher::SketchObject", "Sketch012")
sketch13.AttachmentSupport = (doc.getObject("YZ_Plane012"), [""])
sketch13.MapMode = "FlatFace"
add_polygon(sketch13, [(-1653, 432), (-1653, 379), (-1232, 379), (-1232, 432)])  # lines 0-3
sketch13.addConstraint(Sketcher.Constraint("Vertical", 0))
sketch13.addConstraint(Sketcher.Constraint("Horizontal", 1))
sketch13.addConstraint(Sketcher.Constraint("Vertical", 2))
sketch13.addConstraint(Sketcher.Constraint("Horizontal", 3))
sketch13.addConstraint(Sketcher.Constraint("DistanceX", 1, 1, 1, 2, 420.689225))
sketch13.addConstraint(Sketcher.Constraint("DistanceY", 0, 2, 0, 1, 53.251803))
sketch13.addConstraint(Sketcher.Constraint("DistanceX", 1, 2, -1, 1, 1232.18596))
sketch13.addConstraint(Sketcher.Constraint("DistanceY", -1, 1, 2, 2, 432.350069))
pad13 = body13.newObject("PartDesign::Pad", "Pad012")
pad13.Profile = sketch13
pad13.Length = 150
pad13.Midplane = True
body14 = doc.addObject("PartDesign::Body", "Body013")

# Sketch on YZ plane
sketch14 = body14.newObject("Sketcher::SketchObject", "Sketch013")
sketch14.AttachmentSupport = (doc.getObject("YZ_Plane013"), [""])
sketch14.MapMode = "FlatFace"
add_polygon(sketch14, [(-830, 438), (-830, 376), (-372, 376), (-372, 438)])  # lines 0-3
sketch14.addConstraint(Sketcher.Constraint("Vertical", 0))
sketch14.addConstraint(Sketcher.Constraint("Horizontal", 1))
sketch14.addConstraint(Sketcher.Constraint("Vertical", 2))
sketch14.addConstraint(Sketcher.Constraint("Horizontal", 3))
sketch14.addConstraint(Sketcher.Constraint("DistanceY", 0, 2, 0, 1, 61.2396))
sketch14.addConstraint(Sketcher.Constraint("DistanceX", 1, 1, 1, 2, 457.965404))
sketch14.addConstraint(Sketcher.Constraint("DistanceX", 0, 2, -1, 1, 830.134988))
sketch14.addConstraint(Sketcher.Constraint("DistanceY", -1, 1, 0, 2, 376.435667))
pad14 = body14.newObject("PartDesign::Pad", "Pad013")
pad14.Profile = sketch14
pad14.Length = 150
pad14.Midplane = True
body15 = doc.addObject("PartDesign::Body", "Body014")

# Sketch on YZ plane
sketch15 = body15.newObject("Sketcher::SketchObject", "Sketch014")
sketch15.AttachmentSupport = (doc.getObject("YZ_Plane014"), [""])
sketch15.MapMode = "FlatFace"
add_polygon(sketch15, [(-2508, 1865), (-2508, 432), (-2494, 432), (-2494, 1865)])  # lines 0-3
sketch15.addConstraint(Sketcher.Constraint("Vertical", 0))
sketch15.addConstraint(Sketcher.Constraint("Horizontal", 1))
sketch15.addConstraint(Sketcher.Constraint("Vertical", 2))
sketch15.addConstraint(Sketcher.Constraint("Horizontal", 3))
sketch15.addConstraint(Sketcher.Constraint("DistanceX", 1, 1, 1, 2, 13.313055))
sketch15.addConstraint(Sketcher.Constraint("DistanceY", 0, 2, 0, 1, 1432.473153))
sketch15.addConstraint(Sketcher.Constraint("DistanceY", -1, 1, 0, 2, 432.350069))
sketch15.addConstraint(Sketcher.Constraint("DistanceX", 0, 2, -1, 1, 2507.566452))
pad15 = body15.newObject("PartDesign::Pad", "Pad014")
pad15.Profile = sketch15
pad15.Length = 10
pad15.Midplane = True
body16 = doc.addObject("PartDesign::Body", "Body015")

# Sketch on YZ plane
sketch16 = body16.newObject("Sketcher::SketchObject", "Sketch015")
sketch16.AttachmentSupport = (doc.getObject("YZ_Plane015"), [""])
sketch16.MapMode = "FlatFace"
add_polygon(sketch16, [(-2137, 1862), (-2137, 432), (-2124, 432), (-2124, 1862)])  # lines 0-3
sketch16.addConstraint(Sketcher.Constraint("Vertical", 0))
sketch16.addConstraint(Sketcher.Constraint("Horizontal", 1))
sketch16.addConstraint(Sketcher.Constraint("Vertical", 2))
sketch16.addConstraint(Sketcher.Constraint("Horizontal", 3))
sketch16.addConstraint(Sketcher.Constraint("DistanceX", 1, 1, 1, 2, 13.313055))
sketch16.addConstraint(Sketcher.Constraint("DistanceY", 0, 2, 0, 1, 1429.810613))
sketch16.addConstraint(Sketcher.Constraint("DistanceX", 0, 2, -1, 1, 2137.466431))
sketch16.addConstraint(Sketcher.Constraint("DistanceY", -1, 1, 0, 2, 432.350069))
pad16 = body16.newObject("PartDesign::Pad", "Pad015")
pad16.Profile = sketch16
pad16.Length = 10
pad16.Midplane = True
body17 = doc.addObject("PartDesign::Body", "Body016")

# Sketch on YZ plane
sketch17 = body17.newObject("Sketcher::SketchObject", "Sketch016")
sketch17.AttachmentSupport = (doc.getObject("YZ_Plane016"), [""])
sketch17.MapMode = "FlatFace"
add_polygon(sketch17, [(-1645, 1867), (-1645, 435), (-1632, 435), (-1632, 1867)])  # lines 0-3
sketch17.addConstraint(Sketcher.Constraint("Vertical", 0))
sketch17.addConstraint(Sketcher.Constraint("Horizontal", 1))
sketch17.addConstraint(Sketcher.Constraint("Vertical", 2))
sketch17.addConstraint(Sketcher.Constraint("Horizontal", 3))
sketch17.addConstraint(Sketcher.Constraint("DistanceX", 1, 1, 1, 2, 13.312936))
sketch17.addConstraint(Sketcher.Constraint("DistanceY", 0, 2, 0, 1, 1432.473093))
sketch17.addConstraint(Sketcher.Constraint("DistanceX", 0, 2, -1, 1, 1644.887328))
sketch17.addConstraint(Sketcher.Constraint("DistanceY", -1, 1, 0, 2, 435.012668))
pad17 = body17.newObject("PartDesign::Pad", "Pad016")
pad17.Profile = sketch17
pad17.Length = 10
pad17.Midplane = True
body18 = doc.addObject("PartDesign::Body", "Body017")

# Sketch on YZ plane
sketch18 = body18.newObject("Sketcher::SketchObject", "Sketch017")
sketch18.AttachmentSupport = (doc.getObject("YZ_Plane017"), [""])
sketch18.MapMode = "FlatFace"
add_polygon(sketch18, [(-1259, 1867), (-1259, 438), (-1245, 438), (-1245, 1867)])  # lines 0-3
sketch18.addConstraint(Sketcher.Constraint("Vertical", 0))
sketch18.addConstraint(Sketcher.Constraint("Horizontal", 1))
sketch18.addConstraint(Sketcher.Constraint("Vertical", 2))
sketch18.addConstraint(Sketcher.Constraint("Horizontal", 3))
sketch18.addConstraint(Sketcher.Constraint("DistanceX", 1, 1, 1, 2, 13.313055))
sketch18.addConstraint(Sketcher.Constraint("DistanceY", 0, 2, 0, 1, 1429.810494))
sketch18.addConstraint(Sketcher.Constraint("DistanceX", 0, 2, -1, 1, 1258.811951))
sketch18.addConstraint(Sketcher.Constraint("DistanceY", -1, 1, 2, 2, 1867.485762))
pad18 = body18.newObject("PartDesign::Pad", "Pad017")
pad18.Profile = sketch18
pad18.Length = 10
pad18.Midplane = True
body19 = doc.addObject("PartDesign::Body", "Body018")

# Sketch on YZ plane
sketch19 = body19.newObject("Sketcher::SketchObject", "Sketch018")
sketch19.AttachmentSupport = (doc.getObject("YZ_Plane018"), [""])
sketch19.MapMode = "FlatFace"
add_polygon(sketch19, [(-814, 1867), (-814, 440), (-801, 440), (-801, 1867)])  # lines 0-3
sketch19.addConstraint(Sketcher.Constraint("Vertical", 0))
sketch19.addConstraint(Sketcher.Constraint("Horizontal", 1))
sketch19.addConstraint(Sketcher.Constraint("Vertical", 2))
sketch19.addConstraint(Sketcher.Constraint("Horizontal", 3))
sketch19.addConstraint(Sketcher.Constraint("DistanceX", 1, 1, 1, 2, 13.313055))
sketch19.addConstraint(Sketcher.Constraint("DistanceY", 0, 2, 0, 1, 1427.147895))
sketch19.addConstraint(Sketcher.Constraint("DistanceY", -1, 1, 2, 2, 1867.485762))
sketch19.addConstraint(Sketcher.Constraint("DistanceX", 0, 2, -1, 1, 814.159513))
pad19 = body19.newObject("PartDesign::Pad", "Pad018")
pad19.Profile = sketch19
pad19.Length = 10
pad19.Midplane = True
body20 = doc.addObject("PartDesign::Body", "Body019")

# Sketch on YZ plane
sketch20 = body20.newObject("Sketcher::SketchObject", "Sketch019")
sketch20.AttachmentSupport = (doc.getObject("YZ_Plane019"), [""])
sketch20.MapMode = "FlatFace"
add_polygon(sketch20, [(-401, 1867), (-401, 440), (-388, 440), (-388, 1867)])  # lines 0-3
sketch20.addConstraint(Sketcher.Constraint("Vertical", 0))
sketch20.addConstraint(Sketcher.Constraint("Horizontal", 1))
sketch20.addConstraint(Sketcher.Constraint("Vertical", 2))
sketch20.addConstraint(Sketcher.Constraint("Horizontal", 3))
sketch20.addConstraint(Sketcher.Constraint("DistanceX", 1, 1, 1, 2, 13.313025))
sketch20.addConstraint(Sketcher.Constraint("DistanceY", 0, 2, 0, 1, 1427.147895))
sketch20.addConstraint(Sketcher.Constraint("DistanceX", 1, 2, -1, 1, 388.145089))
sketch20.addConstraint(Sketcher.Constraint("DistanceY", -1, 1, 2, 2, 1867.485762))
pad20 = body20.newObject("PartDesign::Pad", "Pad019")
pad20.Profile = sketch20
pad20.Length = 10
pad20.Midplane = True

doc.recompute()
